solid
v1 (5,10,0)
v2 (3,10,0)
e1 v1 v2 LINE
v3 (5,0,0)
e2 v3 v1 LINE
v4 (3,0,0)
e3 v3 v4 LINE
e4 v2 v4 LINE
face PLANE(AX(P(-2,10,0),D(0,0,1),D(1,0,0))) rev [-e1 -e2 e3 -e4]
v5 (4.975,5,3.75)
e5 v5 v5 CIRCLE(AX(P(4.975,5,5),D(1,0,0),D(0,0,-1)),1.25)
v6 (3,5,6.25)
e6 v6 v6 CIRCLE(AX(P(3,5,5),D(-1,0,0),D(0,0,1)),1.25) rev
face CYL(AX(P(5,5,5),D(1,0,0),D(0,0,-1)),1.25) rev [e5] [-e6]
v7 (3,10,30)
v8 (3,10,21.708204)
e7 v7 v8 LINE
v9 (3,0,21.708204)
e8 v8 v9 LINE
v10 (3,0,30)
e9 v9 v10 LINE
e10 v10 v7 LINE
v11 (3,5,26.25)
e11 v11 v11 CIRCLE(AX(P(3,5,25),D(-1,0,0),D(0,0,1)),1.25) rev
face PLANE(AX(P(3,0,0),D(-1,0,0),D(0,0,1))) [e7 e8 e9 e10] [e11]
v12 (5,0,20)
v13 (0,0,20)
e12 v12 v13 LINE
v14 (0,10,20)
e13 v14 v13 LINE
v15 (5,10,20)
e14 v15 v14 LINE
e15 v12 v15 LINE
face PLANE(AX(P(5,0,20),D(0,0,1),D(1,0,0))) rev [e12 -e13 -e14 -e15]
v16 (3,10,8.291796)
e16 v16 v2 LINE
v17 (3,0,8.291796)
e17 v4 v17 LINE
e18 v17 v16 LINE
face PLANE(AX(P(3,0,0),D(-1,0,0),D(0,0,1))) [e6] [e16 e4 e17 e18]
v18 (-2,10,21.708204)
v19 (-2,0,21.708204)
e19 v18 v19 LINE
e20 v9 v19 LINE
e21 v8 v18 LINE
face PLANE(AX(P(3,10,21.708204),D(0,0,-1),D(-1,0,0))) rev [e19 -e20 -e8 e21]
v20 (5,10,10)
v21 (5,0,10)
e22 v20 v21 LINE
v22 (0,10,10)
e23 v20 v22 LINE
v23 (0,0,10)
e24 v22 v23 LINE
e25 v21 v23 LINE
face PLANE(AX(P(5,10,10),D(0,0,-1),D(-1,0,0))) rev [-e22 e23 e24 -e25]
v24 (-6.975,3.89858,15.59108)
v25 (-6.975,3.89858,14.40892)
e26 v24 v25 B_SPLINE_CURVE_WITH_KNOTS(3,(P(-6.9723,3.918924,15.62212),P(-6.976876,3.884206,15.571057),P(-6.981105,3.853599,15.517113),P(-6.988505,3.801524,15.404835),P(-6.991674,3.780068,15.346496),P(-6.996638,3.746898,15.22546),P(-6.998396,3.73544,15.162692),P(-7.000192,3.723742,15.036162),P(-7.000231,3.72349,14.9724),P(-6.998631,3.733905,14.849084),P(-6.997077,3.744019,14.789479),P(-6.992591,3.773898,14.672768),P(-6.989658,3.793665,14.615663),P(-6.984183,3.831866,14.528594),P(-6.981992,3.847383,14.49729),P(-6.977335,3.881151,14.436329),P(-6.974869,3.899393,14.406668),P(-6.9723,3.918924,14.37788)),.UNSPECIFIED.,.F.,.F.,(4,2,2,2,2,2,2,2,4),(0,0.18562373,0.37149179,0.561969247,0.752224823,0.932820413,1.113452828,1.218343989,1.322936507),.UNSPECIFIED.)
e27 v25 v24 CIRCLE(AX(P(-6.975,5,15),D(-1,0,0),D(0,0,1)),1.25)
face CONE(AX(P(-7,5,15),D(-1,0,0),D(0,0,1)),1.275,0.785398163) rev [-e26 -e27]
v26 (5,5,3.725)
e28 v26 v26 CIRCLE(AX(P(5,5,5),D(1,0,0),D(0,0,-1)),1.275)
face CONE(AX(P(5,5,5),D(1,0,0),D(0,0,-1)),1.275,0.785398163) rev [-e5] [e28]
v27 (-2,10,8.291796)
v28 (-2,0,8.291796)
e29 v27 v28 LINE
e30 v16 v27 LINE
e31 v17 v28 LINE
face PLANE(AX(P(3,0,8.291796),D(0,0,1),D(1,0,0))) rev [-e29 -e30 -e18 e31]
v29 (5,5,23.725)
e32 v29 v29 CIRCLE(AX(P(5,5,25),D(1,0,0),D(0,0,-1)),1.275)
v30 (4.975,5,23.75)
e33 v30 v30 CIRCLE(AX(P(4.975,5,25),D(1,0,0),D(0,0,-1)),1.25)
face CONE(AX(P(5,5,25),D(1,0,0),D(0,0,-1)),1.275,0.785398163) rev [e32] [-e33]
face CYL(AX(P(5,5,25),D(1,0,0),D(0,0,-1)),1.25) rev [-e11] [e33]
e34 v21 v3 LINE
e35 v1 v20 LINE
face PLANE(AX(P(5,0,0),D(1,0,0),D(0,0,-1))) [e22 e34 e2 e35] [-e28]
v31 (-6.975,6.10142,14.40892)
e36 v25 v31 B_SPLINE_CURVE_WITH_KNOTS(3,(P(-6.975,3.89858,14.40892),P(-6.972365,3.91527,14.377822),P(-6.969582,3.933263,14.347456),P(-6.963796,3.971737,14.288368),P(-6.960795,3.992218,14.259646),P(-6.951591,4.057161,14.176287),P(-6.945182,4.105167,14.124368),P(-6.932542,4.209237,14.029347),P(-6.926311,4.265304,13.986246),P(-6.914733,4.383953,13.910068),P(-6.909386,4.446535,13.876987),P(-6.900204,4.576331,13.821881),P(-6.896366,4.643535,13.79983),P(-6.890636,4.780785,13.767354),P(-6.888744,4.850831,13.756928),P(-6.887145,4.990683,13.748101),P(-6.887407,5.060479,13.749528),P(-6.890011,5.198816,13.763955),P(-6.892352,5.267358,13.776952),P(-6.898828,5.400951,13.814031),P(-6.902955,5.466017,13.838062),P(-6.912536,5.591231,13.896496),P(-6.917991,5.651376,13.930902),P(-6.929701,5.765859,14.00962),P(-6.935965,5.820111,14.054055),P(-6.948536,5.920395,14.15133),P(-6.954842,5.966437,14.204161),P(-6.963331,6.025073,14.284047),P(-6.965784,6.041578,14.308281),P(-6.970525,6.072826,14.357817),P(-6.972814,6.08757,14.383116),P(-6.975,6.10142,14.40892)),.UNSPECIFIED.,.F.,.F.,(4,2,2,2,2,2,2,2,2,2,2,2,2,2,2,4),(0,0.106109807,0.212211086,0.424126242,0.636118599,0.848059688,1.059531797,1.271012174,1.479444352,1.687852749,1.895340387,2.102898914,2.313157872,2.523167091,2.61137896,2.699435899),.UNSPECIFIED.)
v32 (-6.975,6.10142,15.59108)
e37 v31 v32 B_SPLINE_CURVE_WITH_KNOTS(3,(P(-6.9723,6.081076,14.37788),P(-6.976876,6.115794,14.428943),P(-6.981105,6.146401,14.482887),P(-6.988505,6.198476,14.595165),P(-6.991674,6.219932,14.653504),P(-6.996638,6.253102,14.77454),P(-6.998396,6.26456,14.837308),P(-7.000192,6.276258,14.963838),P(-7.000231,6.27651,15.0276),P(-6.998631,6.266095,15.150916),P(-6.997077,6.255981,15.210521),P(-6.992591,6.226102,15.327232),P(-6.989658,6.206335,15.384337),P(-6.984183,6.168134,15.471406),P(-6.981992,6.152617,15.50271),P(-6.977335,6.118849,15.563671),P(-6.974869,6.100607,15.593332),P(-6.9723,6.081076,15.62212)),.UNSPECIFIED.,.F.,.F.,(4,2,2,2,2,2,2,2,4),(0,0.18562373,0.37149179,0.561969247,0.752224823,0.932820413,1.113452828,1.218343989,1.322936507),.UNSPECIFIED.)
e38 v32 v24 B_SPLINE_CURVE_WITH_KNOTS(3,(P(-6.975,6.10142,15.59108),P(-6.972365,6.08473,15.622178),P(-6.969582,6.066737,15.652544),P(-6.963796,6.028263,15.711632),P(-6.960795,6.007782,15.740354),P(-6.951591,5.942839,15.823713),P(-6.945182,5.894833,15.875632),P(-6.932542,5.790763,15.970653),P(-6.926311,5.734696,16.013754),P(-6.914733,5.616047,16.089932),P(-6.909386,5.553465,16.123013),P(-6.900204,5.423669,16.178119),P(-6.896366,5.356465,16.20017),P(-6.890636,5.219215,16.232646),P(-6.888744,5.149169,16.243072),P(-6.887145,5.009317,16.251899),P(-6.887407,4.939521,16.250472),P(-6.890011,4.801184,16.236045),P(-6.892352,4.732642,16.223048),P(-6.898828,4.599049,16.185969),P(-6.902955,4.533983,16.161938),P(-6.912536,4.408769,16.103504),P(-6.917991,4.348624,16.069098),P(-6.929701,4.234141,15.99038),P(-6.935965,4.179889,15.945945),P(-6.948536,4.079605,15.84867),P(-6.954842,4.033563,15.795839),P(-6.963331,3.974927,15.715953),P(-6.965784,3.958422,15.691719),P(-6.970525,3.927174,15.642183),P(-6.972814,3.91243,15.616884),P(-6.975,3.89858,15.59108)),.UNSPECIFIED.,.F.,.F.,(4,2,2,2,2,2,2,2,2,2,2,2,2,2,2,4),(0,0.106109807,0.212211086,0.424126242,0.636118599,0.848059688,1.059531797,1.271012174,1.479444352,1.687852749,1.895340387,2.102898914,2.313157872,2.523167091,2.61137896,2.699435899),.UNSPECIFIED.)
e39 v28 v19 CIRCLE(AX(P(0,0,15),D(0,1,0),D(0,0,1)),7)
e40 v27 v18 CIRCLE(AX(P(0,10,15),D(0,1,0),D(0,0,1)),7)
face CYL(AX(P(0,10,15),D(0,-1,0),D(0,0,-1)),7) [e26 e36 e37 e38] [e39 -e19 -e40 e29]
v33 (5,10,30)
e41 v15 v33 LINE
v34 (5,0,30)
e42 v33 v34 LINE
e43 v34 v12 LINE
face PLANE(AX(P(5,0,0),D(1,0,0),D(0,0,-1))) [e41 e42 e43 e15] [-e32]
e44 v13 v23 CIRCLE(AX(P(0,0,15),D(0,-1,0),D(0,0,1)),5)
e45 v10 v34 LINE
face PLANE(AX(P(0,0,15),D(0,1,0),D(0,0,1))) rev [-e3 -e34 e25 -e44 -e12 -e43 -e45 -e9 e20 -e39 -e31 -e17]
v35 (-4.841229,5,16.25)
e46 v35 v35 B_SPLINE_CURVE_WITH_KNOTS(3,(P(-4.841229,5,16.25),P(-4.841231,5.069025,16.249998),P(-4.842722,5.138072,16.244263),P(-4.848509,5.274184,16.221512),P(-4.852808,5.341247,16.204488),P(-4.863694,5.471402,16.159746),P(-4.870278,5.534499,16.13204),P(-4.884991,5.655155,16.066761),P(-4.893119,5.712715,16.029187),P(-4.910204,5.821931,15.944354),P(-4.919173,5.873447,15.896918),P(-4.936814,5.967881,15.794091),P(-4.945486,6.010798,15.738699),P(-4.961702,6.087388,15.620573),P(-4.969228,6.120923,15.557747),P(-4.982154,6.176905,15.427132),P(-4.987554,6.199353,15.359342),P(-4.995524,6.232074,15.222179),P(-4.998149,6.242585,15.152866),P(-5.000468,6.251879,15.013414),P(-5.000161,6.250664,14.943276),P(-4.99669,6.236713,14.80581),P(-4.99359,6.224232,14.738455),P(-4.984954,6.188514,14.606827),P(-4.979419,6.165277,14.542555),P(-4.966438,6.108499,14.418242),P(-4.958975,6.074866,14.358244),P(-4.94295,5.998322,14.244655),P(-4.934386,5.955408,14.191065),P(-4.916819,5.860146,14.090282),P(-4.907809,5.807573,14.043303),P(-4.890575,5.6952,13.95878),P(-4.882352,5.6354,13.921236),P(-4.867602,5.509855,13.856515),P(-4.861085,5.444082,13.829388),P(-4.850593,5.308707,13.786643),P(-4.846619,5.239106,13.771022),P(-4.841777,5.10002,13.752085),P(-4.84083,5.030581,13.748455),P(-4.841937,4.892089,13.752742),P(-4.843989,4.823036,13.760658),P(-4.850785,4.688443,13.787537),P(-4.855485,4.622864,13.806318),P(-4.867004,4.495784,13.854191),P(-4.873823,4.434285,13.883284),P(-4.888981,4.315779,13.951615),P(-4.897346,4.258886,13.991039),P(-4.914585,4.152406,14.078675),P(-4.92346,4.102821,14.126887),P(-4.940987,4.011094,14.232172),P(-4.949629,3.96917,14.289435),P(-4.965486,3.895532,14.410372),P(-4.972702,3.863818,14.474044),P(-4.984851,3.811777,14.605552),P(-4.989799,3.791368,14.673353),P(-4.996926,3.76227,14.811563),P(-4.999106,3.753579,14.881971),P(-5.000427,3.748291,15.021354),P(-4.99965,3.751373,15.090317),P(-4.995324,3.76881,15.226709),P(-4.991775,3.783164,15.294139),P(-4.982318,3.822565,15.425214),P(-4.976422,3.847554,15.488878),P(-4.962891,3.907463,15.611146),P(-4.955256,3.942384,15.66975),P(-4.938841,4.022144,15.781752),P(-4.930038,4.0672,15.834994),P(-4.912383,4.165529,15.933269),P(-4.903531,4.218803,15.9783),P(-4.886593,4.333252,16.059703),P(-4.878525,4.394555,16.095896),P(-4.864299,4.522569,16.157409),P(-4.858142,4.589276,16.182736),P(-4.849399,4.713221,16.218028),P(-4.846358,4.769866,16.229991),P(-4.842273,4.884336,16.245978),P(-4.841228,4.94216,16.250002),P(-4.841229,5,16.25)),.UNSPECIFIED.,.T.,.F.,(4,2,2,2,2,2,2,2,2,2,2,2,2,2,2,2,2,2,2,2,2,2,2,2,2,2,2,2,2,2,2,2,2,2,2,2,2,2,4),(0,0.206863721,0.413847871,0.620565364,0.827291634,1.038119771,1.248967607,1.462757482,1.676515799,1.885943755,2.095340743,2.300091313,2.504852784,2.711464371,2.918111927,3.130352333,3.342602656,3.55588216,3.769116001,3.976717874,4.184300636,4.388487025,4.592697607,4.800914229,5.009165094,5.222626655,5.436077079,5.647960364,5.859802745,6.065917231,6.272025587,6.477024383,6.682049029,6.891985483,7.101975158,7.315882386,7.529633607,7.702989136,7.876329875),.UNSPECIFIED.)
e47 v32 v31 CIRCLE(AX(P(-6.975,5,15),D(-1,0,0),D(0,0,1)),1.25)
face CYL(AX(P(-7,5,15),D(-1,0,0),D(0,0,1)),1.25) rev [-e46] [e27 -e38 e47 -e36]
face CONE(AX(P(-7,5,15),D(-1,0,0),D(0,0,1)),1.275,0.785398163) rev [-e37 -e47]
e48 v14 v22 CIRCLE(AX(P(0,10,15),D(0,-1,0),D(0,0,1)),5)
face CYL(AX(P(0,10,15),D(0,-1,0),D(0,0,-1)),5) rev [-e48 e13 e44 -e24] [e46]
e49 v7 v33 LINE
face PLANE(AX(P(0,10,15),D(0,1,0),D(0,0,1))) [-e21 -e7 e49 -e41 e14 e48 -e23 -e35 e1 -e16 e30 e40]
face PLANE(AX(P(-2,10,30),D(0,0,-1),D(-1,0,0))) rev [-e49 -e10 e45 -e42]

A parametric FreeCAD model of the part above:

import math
import FreeCAD as App
import Part
import Sketcher

V = App.Vector

doc = App.newDocument("Part")
body = doc.addObject("PartDesign::Body", "Body")

# Sketch on XZ plane
sketch1 = body.newObject("Sketcher::SketchObject", "Sketch")
sketch1.AttachmentSupport = (doc.getObject("XZ_Plane"), [""])
sketch1.MapMode = "FlatFace"
sketch1.addGeometry(Part.LineSegment(V(0, 10, 0), V(0, 0, 0)), False)
sketch1.addGeometry(Part.LineSegment(V(0, 0, 0), V(-2, 0, 0)), False)
sketch1.addGeometry(Part.LineSegment(V(-2, 0, 0), V(-2, 8.291796, 0)), False)
sketch1.addGeometry(Part.ArcOfCircle(Part.Circle(V(0, 15, 0), V(0, 0, 1), 7), math.radians(106.60155), math.radians(253.39845)), False)
sketch1.addGeometry(Part.LineSegment(V(-2, 21.708204, 0), V(-2, 30, 0)), False)
sketch1.addGeometry(Part.LineSegment(V(-2, 30, 0), V(0, 30, 0)), False)
sketch1.addGeometry(Part.LineSegment(V(0, 30, 0), V(0, 20, 0)), False)
sketch1.addGeometry(Part.ArcOfCircle(Part.Circle(V(0, 15, 0), V(0, 0, 1), 5), math.radians(90), math.radians(270)), False)
sketch1.addConstraint(Sketcher.Constraint("Coincident", 0, 2, 1, 1))
sketch1.addConstraint(Sketcher.Constraint("Coincident", 1, 2, 2, 1))
sketch1.addConstraint(Sketcher.Constraint("Coincident", 2, 2, 3, 2))
sketch1.addConstraint(Sketcher.Constraint("Coincident", 3, 1, 4, 1))
sketch1.addConstraint(Sketcher.Constraint("Coincident", 4, 2, 5, 1))
sketch1.addConstraint(Sketcher.Constraint("Coincident", 5, 2, 6, 1))
sketch1.addConstraint(Sketcher.Constraint("Coincident", 6, 2, 7, 1))
sketch1.addConstraint(Sketcher.Constraint("Coincident", 7, 2, 0, 1))
sketch1.addConstraint(Sketcher.Constraint("Vertical", 0))
sketch1.addConstraint(Sketcher.Constraint("Horizontal", 1))
sketch1.addConstraint(Sketcher.Constraint("Vertical", 2))
sketch1.addConstraint(Sketcher.Constraint("Vertical", 4))
sketch1.addConstraint(Sketcher.Constraint("Horizontal", 5))
sketch1.addConstraint(Sketcher.Constraint("Vertical", 6))
sketch1.addConstraint(Sketcher.Constraint("Coincident", 0, 2, -1, 1))
sketch1.addConstraint(Sketcher.Constraint("Coincident", 7, 3, 3, 3))
sketch1.addConstraint(Sketcher.Constraint("PointOnObject", 3, 3, -2))
sketch1.addConstraint(Sketcher.Constraint("PointOnObject", 5, 2, -2))
sketch1.addConstraint(Sketcher.Constraint("Vertical", 2, 2, 3, 1))
sketch1.addConstraint(Sketcher.Constraint("Equal", 2, 4))
sketch1.addConstraint(Sketcher.Constraint("Radius", 3, 7.0))
sketch1.addConstraint(Sketcher.Constraint("Radius", 7, 5.0))
sketch1.addConstraint(Sketcher.Constraint("DistanceX", 1, 2, 1, 1, 2.0))
sketch1.addConstraint(Sketcher.Constraint("DistanceY", 0, 2, 0, 1, 10.0))
pad1 = body.newObject("PartDesign::Pad", "Pad")
pad1.Profile = sketch1
pad1.Length = 10
pad1.Reversed = True

# Sketch on YZ plane
sketch2 = body.newObject("Sketcher::SketchObject", "Sketch001")
sketch2.AttachmentSupport = (doc.getObject("YZ_Plane"), [""])
sketch2.MapMode = "FlatFace"
sketch2.AttachmentOffset = App.Placement(V(0, 0, -7), App.Rotation())
sketch2.addGeometry(Part.Circle(V(5, 15, 0), V(0, 0, 1), 1.25), False)
sketch2.addConstraint(Sketcher.Constraint("Diameter", 0, 2.5))
sketch2.addConstraint(Sketcher.Constraint("DistanceX", -1, 1, 0, 3, 5.0))
sketch2.addConstraint(Sketcher.Constraint("DistanceY", -1, 1, 0, 3, 15.0))
doc.recompute()
hole = body.newObject("PartDesign::Hole", "Hole")
hole.Profile = sketch2
hole.ThreadType = "None"
hole.Diameter = 2.5
hole.DepthType = "ThroughAll"
hole.HoleCutType = "Countersink"
hole.HoleCutDiameter = 2.55
hole.HoleCutCountersinkAngle = 90
hole.Reversed = True

# Sketch on YZ plane
sketch3 = body.newObject("Sketcher::SketchObject", "Sketch002")
sketch3.AttachmentSupport = (doc.getObject("YZ_Plane"), [""])
sketch3.MapMode = "FlatFace"
sketch3.addGeometry(Part.LineSegment(V(10, 10, 0), V(0, 10, 0)), False)
sketch3.addGeometry(Part.LineSegment(V(0, 10, 0), V(0, 0, 0)), False)
sketch3.addGeometry(Part.LineSegment(V(0, 0, 0), V(10, 0, 0)), False)
sketch3.addGeometry(Part.LineSegment(V(10, 0, 0), V(10, 10, 0)), False)
sketch3.addGeometry(Part.LineSegment(V(10, 30, 0), V(0, 30, 0)), False)
sketch3.addGeometry(Part.LineSegment(V(0, 30, 0), V(0, 20, 0)), False)
sketch3.addGeometry(Part.LineSegment(V(0, 20, 0), V(10, 20, 0)), False)
sketch3.addGeometry(Part.LineSegment(V(10, 20, 0), V(10, 30, 0)), False)
sketch3.addConstraint(Sketcher.Constraint("Coincident", 0, 2, 1, 1))
sketch3.addConstraint(Sketcher.Constraint("Coincident", 1, 2, 2, 1))
sketch3.addConstraint(Sketcher.Constraint("Coincident", 2, 2, 3, 1))
sketch3.addConstraint(Sketcher.Constraint("Coincident", 3, 2, 0, 1))
sketch3.addConstraint(Sketcher.Constraint("Coincident", 4, 2, 5, 1))
sketch3.addConstraint(Sketcher.Constraint("Coincident", 5, 2, 6, 1))
sketch3.addConstraint(Sketcher.Constraint("Coincident", 6, 2, 7, 1))
sketch3.addConstraint(Sketcher.Constraint("Coincident", 7, 2, 4, 1))
sketch3.addConstraint(Sketcher.Constraint("Horizontal", 0))
sketch3.addConstraint(Sketcher.Constraint("Vertical", 1))
sketch3.addConstraint(Sketcher.Constraint("Horizontal", 2))
sketch3.addConstraint(Sketcher.Constraint("Vertical", 3))
sketch3.addConstraint(Sketcher.Constraint("Horizontal", 4))
sketch3.addConstraint(Sketcher.Constraint("Vertical", 5))
sketch3.addConstraint(Sketcher.Constraint("Horizontal", 6))
sketch3.addConstraint(Sketcher.Constraint("Vertical", 7))
sketch3.addConstraint(Sketcher.Constraint("Coincident", 1, 2, -1, 1))
sketch3.addConstraint(Sketcher.Constraint("PointOnObject", 4, 2, -2))
sketch3.addConstraint(Sketcher.Constraint("Vertical", 3, 2, 6, 2))
sketch3.addConstraint(Sketcher.Constraint("Equal", 6, 1))
sketch3.addConstraint(Sketcher.Constraint("Equal", 3, 5))
sketch3.addConstraint(Sketcher.Constraint("DistanceX", 0, 2, 0, 1, 10.0))
sketch3.addConstraint(Sketcher.Constraint("DistanceY", -1, 1, 4, 2, 30.0))
pad2 = body.newObject("PartDesign::Pad", "Pad001")
pad2.Profile = sketch3
pad2.Length = 5

# Sketch on YZ plane
sketch4 = body.newObject("Sketcher::SketchObject", "Sketch003")
sketch4.AttachmentSupport = (doc.getObject("YZ_Plane"), [""])
sketch4.MapMode = "FlatFace"
sketch4.AttachmentOffset = App.Placement(V(0, 0, 5), App.Rotation())
sketch4.addGeometry(Part.Circle(V(5, 5, 0), V(0, 0, 1), 1.25), False)
sketch4.addGeometry(Part.Circle(V(5, 25, 0), V(0, 0, 1), 1.25), False)
sketch4.addConstraint(Sketcher.Constraint("Equal", 0, 1))
sketch4.addConstraint(Sketcher.Constraint("Vertical", 0, 3, 1, 3))
sketch4.addConstraint(Sketcher.Constraint("Diameter", 0, 2.5))
sketch4.addConstraint(Sketcher.Constraint("DistanceX", -1, 1, 0, 3, 5.0))
sketch4.addConstraint(Sketcher.Constraint("DistanceY", -1, 1, 0, 3, 5.0))
sketch4.addConstraint(Sketcher.Constraint("DistanceY", -1, 1, 1, 3, 25.0))
doc.recompute()
hole2 = body.newObject("PartDesign::Hole", "Hole001")
hole2.Profile = sketch4
hole2.ThreadType = "None"
hole2.Diameter = 2.5
hole2.DepthType = "ThroughAll"
hole2.HoleCutType = "Countersink"
hole2.HoleCutDiameter = 2.55
hole2.HoleCutCountersinkAngle = 90

# Sketch on YZ plane
sketch5 = body.newObject("Sketcher::SketchObject", "Sketch004")
sketch5.AttachmentSupport = (doc.getObject("YZ_Plane"), [""])
sketch5.MapMode = "FlatFace"
sketch5.AttachmentOffset = App.Placement(V(0, 0, -2), App.Rotation())
sketch5.addGeometry(Part.LineSegment(V(10, 0, 0), V(0, 0, 0)), False)
sketch5.addGeometry(Part.LineSegment(V(0, 0, 0), V(0, 8.291796, 0)), False)
sketch5.addGeometry(Part.LineSegment(V(0, 8.291796, 0), V(10, 8.291796, 0)), False)
sketch5.addGeometry(Part.LineSegment(V(10, 8.291796, 0), V(10, 0, 0)), False)
sketch5.addGeometry(Part.LineSegment(V(10, 21.708204, 0), V(0, 21.708204, 0)), False)
sketch5.addGeometry(Part.LineSegment(V(0, 21.708204, 0), V(0, 30, 0)), False)
sketch5.addGeometry(Part.LineSegment(V(0, 30, 0), V(10, 30, 0)), False)
sketch5.addGeometry(Part.LineSegment(V(10, 30, 0), V(10, 21.708204, 0)), False)
sketch5.addConstraint(Sketcher.Constraint("Coincident", 0, 2, 1, 1))
sketch5.addConstraint(Sketcher.Constraint("Coincident", 1, 2, 2, 1))
sketch5.addConstraint(Sketcher.Constraint("Coincident", 2, 2, 3, 1))
sketch5.addConstraint(Sketcher.Constraint("Coincident", 3, 2, 0, 1))
sketch5.addConstraint(Sketcher.Constraint("Coincident", 4, 2, 5, 1))
sketch5.addConstraint(Sketcher.Constraint("Coincident", 5, 2, 6, 1))
sketch5.addConstraint(Sketcher.Constraint("Coincident", 6, 2, 7, 1))
sketch5.addConstraint(Sketcher.Constraint("Coincident", 7, 2, 4, 1))
sketch5.addConstraint(Sketcher.Constraint("Horizontal", 0))
sketch5.addConstraint(Sketcher.Constraint("Vertical", 1))
sketch5.addConstraint(Sketcher.Constraint("Horizontal", 2))
sketch5.addConstraint(Sketcher.Constraint("Vertical", 3))
sketch5.addConstraint(Sketcher.Constraint("Horizontal", 4))
sketch5.addConstraint(Sketcher.Constraint("Vertical", 5))
sketch5.addConstraint(Sketcher.Constraint("Horizontal", 6))
sketch5.addConstraint(Sketcher.Constraint("Vertical", 7))
sketch5.addConstraint(Sketcher.Constraint("Coincident", 0, 2, -1, 1))
sketch5.addConstraint(Sketcher.Constraint("PointOnObject", 4, 2, -2))
sketch5.addConstraint(Sketcher.Constraint("Vertical", 3, 2, 6, 2))
sketch5.addConstraint(Sketcher.Constraint("Equal", 3, 5))
sketch5.addConstraint(Sketcher.Constraint("DistanceX", 0, 2, 0, 1, 10.0))
sketch5.addConstraint(Sketcher.Constraint("DistanceY", -1, 1, 5, 2, 30.0))
sketch5.addConstraint(Sketcher.Constraint("DistanceY", 1, 1, 1, 2, 8.291796))
pocket1 = body.newObject("PartDesign::Pocket", "Pocket")
pocket1.Profile = sketch5
pocket1.Length = 5
pocket1.Reversed = True

doc.recompute()
